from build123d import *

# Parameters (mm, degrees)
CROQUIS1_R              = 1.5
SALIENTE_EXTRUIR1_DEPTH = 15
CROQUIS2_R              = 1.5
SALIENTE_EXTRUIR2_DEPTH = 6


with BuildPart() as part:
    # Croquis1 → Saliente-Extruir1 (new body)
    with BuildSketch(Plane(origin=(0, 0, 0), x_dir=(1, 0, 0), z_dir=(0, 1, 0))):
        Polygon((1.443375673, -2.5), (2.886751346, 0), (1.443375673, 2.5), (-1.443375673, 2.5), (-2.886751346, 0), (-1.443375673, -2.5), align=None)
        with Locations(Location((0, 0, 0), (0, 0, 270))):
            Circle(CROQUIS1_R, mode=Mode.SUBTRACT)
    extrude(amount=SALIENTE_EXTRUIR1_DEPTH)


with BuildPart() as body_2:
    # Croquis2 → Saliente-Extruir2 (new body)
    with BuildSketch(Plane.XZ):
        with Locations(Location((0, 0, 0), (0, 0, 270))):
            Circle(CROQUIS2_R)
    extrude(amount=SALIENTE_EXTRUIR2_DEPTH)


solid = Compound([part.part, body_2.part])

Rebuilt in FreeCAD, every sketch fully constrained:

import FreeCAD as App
import Part
import Sketcher

V = App.Vector
Q = App.Units.Quantity


def add_polygon(sketch, points):
    """Adds a closed chain of lines whose ends are joined by coincident constraints."""
    first, n = sketch.GeometryCount, len(points)
    for a, b in zip(points, points[1:] + points[:1]):
        sketch.addGeometry(Part.LineSegment(App.Vector(*a, 0), App.Vector(*b, 0)), False)
    for i in range(n):
        sketch.addConstraint(Sketcher.Constraint("Coincident", first + i, 2, first + (i + 1) % n, 1))

doc = App.newDocument("Part")
body = doc.addObject("PartDesign::Body", "Body")

sketch1 = doc.addObject("Sketcher::SketchObject", "Sketch")
body.addObject(sketch1)
sketch1.AttachmentSupport = (doc.XZ_Plane, [""])
sketch1.MapMode = "FlatFace"
add_polygon(sketch1, [(1.4, 2.5), (2.9, 0), (1.4, -2.5), (-1.4, -2.5), (-2.9, 0), (-1.4, 2.5)])
sketch1.addGeometry(Part.Circle(V(0, 0, 0), V(0, 0, 1), 1.5), False)
sketch1.addConstraint(Sketcher.Constraint("Horizontal", 2))
sketch1.addConstraint(Sketcher.Constraint("Horizontal", 5))
sketch1.addConstraint(Sketcher.Constraint("Coincident", 6, 3, -1, 1))
sketch1.addConstraint(Sketcher.Constraint("Symmetric", 0, 2, 3, 2, -1, 1))
sketch1.addConstraint(Sketcher.Constraint("Symmetric", 1, 2, 4, 2, -1, 1))
sketch1.addConstraint(Sketcher.Constraint("PointOnObject", 0, 2, -1))
sketch1.addConstraint(Sketcher.Constraint("Parallel", 0, 3))
sketch1.addConstraint(Sketcher.Constraint("Vertical", 2, 2, 4, 2))
sketch1.addConstraint(Sketcher.Constraint("Diameter", 6, 3.0))
sketch1.addConstraint(Sketcher.Constraint("Angle", 0, Q("-60 deg")))
sketch1.addConstraint(Sketcher.Constraint("DistanceY", 2, 2, 4, 2, 5.0))
sketch1.addConstraint(Sketcher.Constraint("DistanceX", 2, 2, 2, 1, 2.886751))
pad1 = doc.addObject("PartDesign::Pad", "Pad")
body.addObject(pad1)
pad1.Profile = sketch1
pad1.Length = 15
pad1.Reversed = True
body2 = doc.addObject("PartDesign::Body", "Body001")

sketch2 = doc.addObject("Sketcher::SketchObject", "Sketch001")
body2.addObject(sketch2)
sketch2.AttachmentSupport = (doc.getObject("XZ_Plane001"), [""])
sketch2.MapMode = "FlatFace"
sketch2.addGeometry(Part.Circle(V(0, 0, 0), V(0, 0, 1), 1.5), False)
sketch2.addConstraint(Sketcher.Constraint("Coincident", 0, 3, -1, 1))
sketch2.addConstraint(Sketcher.Constraint("Diameter", 0, 3.0))
pad2 = doc.addObject("PartDesign::Pad", "Pad001")
body2.addObject(pad2)
pad2.Profile = sketch2
pad2.Length = 6

doc.recompute()
